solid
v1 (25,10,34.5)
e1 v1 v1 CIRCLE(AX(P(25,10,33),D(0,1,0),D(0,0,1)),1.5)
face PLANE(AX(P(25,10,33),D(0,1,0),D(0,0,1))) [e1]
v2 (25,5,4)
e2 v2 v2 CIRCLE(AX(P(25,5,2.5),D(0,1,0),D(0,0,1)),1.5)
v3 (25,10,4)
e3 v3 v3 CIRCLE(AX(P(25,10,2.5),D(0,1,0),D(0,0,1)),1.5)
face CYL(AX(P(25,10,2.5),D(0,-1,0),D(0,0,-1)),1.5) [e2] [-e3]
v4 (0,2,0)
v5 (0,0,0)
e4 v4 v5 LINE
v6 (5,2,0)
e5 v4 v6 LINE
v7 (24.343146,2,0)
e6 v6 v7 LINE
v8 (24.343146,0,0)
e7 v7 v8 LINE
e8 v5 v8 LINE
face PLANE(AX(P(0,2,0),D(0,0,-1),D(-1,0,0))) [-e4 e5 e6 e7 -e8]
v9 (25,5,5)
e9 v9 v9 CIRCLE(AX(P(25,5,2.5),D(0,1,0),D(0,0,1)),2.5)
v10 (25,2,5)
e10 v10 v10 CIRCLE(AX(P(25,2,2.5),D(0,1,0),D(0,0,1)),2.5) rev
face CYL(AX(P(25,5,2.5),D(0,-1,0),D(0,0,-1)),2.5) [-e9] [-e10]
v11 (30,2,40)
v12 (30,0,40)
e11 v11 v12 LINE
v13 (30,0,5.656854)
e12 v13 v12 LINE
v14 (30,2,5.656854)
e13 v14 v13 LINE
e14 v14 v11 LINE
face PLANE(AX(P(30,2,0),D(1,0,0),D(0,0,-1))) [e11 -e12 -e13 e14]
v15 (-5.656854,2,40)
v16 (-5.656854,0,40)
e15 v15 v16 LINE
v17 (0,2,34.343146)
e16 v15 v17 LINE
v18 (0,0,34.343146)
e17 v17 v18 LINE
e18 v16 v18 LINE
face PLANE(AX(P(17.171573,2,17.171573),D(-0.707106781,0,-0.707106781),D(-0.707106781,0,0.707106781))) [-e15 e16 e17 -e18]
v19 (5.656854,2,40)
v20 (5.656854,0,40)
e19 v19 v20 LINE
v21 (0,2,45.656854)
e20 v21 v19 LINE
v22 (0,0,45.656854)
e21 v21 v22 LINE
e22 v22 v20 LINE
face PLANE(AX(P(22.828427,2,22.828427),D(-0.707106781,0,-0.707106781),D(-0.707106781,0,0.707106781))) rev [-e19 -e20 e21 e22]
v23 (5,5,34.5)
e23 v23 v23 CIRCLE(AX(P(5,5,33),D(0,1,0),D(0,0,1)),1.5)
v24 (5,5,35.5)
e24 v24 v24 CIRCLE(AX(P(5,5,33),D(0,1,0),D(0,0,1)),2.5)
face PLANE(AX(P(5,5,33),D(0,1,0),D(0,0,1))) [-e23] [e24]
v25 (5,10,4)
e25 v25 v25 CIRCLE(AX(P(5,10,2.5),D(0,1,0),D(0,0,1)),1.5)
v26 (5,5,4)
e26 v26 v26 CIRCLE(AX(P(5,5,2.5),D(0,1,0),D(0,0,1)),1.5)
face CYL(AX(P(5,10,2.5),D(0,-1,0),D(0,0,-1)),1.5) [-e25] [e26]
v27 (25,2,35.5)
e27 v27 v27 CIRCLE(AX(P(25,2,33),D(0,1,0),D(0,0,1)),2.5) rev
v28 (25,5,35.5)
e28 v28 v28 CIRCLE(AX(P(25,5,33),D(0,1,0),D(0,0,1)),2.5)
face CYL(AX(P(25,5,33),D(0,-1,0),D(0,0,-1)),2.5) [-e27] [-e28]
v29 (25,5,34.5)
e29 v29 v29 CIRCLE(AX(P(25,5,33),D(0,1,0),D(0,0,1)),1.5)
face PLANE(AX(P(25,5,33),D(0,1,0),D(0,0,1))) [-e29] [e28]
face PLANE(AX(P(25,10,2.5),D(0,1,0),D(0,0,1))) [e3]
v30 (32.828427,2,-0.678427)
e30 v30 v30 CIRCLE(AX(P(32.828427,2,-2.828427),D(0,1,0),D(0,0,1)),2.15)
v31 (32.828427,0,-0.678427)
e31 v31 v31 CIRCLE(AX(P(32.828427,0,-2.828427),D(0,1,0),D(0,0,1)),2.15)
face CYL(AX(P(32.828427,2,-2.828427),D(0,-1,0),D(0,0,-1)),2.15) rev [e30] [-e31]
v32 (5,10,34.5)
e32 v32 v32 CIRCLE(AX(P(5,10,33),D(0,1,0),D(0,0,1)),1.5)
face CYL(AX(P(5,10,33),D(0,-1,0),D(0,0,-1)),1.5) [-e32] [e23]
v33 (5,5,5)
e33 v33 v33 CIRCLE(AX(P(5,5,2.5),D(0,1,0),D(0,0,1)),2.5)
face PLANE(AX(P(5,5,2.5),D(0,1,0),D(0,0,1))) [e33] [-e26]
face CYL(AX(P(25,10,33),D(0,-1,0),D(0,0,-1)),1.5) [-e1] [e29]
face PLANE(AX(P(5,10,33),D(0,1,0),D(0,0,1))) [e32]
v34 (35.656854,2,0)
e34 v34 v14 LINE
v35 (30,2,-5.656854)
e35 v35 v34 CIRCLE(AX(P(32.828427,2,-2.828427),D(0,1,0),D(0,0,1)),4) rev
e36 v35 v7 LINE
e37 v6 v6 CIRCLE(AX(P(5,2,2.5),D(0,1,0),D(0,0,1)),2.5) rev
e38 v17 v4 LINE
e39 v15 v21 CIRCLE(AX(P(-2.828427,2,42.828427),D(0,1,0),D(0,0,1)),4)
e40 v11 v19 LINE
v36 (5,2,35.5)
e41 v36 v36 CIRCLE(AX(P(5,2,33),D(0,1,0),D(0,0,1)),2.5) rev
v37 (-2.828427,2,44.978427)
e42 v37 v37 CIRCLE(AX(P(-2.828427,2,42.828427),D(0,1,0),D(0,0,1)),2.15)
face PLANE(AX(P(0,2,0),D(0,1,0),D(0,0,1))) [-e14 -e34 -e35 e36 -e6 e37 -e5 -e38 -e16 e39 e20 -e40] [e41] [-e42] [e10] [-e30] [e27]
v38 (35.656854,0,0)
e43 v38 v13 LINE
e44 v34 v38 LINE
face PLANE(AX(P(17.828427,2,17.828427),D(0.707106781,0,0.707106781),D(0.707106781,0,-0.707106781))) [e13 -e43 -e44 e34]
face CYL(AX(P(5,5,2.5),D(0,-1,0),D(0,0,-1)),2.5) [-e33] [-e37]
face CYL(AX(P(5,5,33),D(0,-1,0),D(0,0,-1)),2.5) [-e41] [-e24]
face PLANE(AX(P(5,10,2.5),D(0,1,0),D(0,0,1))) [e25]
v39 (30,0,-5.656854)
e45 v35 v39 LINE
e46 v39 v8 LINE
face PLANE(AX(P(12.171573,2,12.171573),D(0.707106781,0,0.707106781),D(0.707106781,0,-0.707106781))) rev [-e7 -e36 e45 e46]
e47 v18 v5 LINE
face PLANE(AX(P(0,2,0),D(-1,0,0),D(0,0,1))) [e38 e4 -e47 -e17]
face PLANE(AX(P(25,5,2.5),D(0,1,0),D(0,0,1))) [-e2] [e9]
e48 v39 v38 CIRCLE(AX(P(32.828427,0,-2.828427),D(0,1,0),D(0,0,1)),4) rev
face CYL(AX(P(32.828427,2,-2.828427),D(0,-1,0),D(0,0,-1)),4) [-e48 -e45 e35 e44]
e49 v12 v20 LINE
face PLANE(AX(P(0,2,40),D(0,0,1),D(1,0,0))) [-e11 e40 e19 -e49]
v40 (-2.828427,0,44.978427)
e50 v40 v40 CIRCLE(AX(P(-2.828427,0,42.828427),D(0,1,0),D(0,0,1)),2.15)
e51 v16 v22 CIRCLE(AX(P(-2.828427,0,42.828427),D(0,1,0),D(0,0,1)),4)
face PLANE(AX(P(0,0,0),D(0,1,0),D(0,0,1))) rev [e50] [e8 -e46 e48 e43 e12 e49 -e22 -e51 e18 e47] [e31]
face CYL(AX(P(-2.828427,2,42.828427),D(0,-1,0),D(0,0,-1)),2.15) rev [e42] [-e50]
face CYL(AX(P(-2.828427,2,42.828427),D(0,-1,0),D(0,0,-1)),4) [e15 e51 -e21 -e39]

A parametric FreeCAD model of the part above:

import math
import FreeCAD as App
import Part
import Sketcher
from FreeCAD import Vector

doc = App.newDocument("Part")
body = doc.addObject("PartDesign::Body", "Body")

sketch1 = body.newObject("Sketcher::SketchObject", "Sketch")
sketch1.AttachmentSupport = (doc.getObject("XZ_Plane"), [""])
sketch1.MapMode = "FlatFace"
sketch1.addGeometry([
    Part.LineSegment(Vector(24.343146, 0, 0), Vector(0, 0, 0)),
    Part.LineSegment(Vector(0, 0, 0), Vector(0, 34.343146, 0)),
    Part.LineSegment(Vector(0, 34.343146, 0), Vector(-5.656854, 40, 0)),
    Part.ArcOfCircle(Part.Circle(Vector(-2.828427, 42.828427, 0), Vector(0, 0, 1), 4), math.radians(45), math.radians(225)),
    Part.LineSegment(Vector(0, 45.656854, 0), Vector(5.656854, 40, 0)),
    Part.LineSegment(Vector(5.656854, 40, 0), Vector(30, 40, 0)),
    Part.LineSegment(Vector(30, 40, 0), Vector(30, 5.656854, 0)),
    Part.LineSegment(Vector(30, 5.656854, 0), Vector(35.656854, 0, 0)),
    Part.ArcOfCircle(Part.Circle(Vector(32.828427, -2.828427, 0), Vector(0, 0, 1), 4), math.radians(-135), math.radians(45)),
    Part.LineSegment(Vector(30, -5.656854, 0), Vector(24.343146, 0, 0)),
    Part.Circle(Vector(-2.828427, 42.828427, 0), Vector(0, 0, 1), 2.15),
    Part.Circle(Vector(32.828427, -2.828427, 0), Vector(0, 0, 1), 2.15),
], False)
sketch1.addConstraint([
    Sketcher.Constraint("Coincident", 0, 2, 1, 1),
    Sketcher.Constraint("Coincident", 1, 2, 2, 1),
    Sketcher.Constraint("Tangent", 2, 2, 3, 2),
    Sketcher.Constraint("Tangent", 3, 1, 4, 1),
    Sketcher.Constraint("Coincident", 4, 2, 5, 1),
    Sketcher.Constraint("Coincident", 5, 2, 6, 1),
    Sketcher.Constraint("Coincident", 6, 2, 7, 1),
    Sketcher.Constraint("Tangent", 7, 2, 8, 2),
    Sketcher.Constraint("Tangent", 8, 1, 9, 1),
    Sketcher.Constraint("Coincident", 9, 2, 0, 1),
    Sketcher.Constraint("Horizontal", 0),
    Sketcher.Constraint("Vertical", 1),
    Sketcher.Constraint("Horizontal", 5),
    Sketcher.Constraint("Vertical", 6),
    Sketcher.Constraint("Coincident", 0, 2, -1, 1),
    Sketcher.Constraint("Coincident", 10, 3, 3, 3),
    Sketcher.Constraint("Coincident", 11, 3, 8, 3),
    Sketcher.Constraint("Equal", 3, 8),
    Sketcher.Constraint("Equal", 10, 11),
    Sketcher.Constraint("Symmetric", 2, 2, 4, 2, -2),
    Sketcher.Constraint("Symmetric", 6, 2, 8, 1, -1),
    Sketcher.Constraint("PointOnObject", 3, 1, -2),
    Sketcher.Constraint("PointOnObject", 7, 2, -1),
    Sketcher.Constraint("Parallel", 2, 4),
    Sketcher.Constraint("Parallel", 4, 7),
    Sketcher.Constraint("Radius", 3, 4.0),
    Sketcher.Constraint("Diameter", 10, 4.3),
    Sketcher.Constraint("DistanceY", -1, 1, 2, 2, 40.0),
    Sketcher.Constraint("DistanceX", -1, 1, 5, 2, 30.0),
])
pad1 = body.newObject("PartDesign::Pad", "Pad")
pad1.Profile = sketch1
pad1.Length = 2
pad1.Reversed = True

sketch2 = body.newObject("Sketcher::SketchObject", "Sketch001")
sketch2.AttachmentSupport = (doc.getObject("XZ_Plane"), [""])
sketch2.MapMode = "FlatFace"
sketch2.addGeometry([
    Part.Circle(Vector(25, 2.5, 0), Vector(0, 0, 1), 1.5),
    Part.Circle(Vector(25, 33, 0), Vector(0, 0, 1), 1.5),
    Part.Circle(Vector(5, 33, 0), Vector(0, 0, 1), 1.5),
    Part.Circle(Vector(5, 2.5, 0), Vector(0, 0, 1), 1.5),
], False)
sketch2.addConstraint([
    Sketcher.Constraint("Equal", 0, 1),
    Sketcher.Constraint("Equal", 1, 2),
    Sketcher.Constraint("Equal", 2, 3),
    Sketcher.Constraint("Horizontal", 1, 3, 2, 3),
    Sketcher.Constraint("Horizontal", 0, 3, 3, 3),
    Sketcher.Constraint("Vertical", 0, 3, 1, 3),
    Sketcher.Constraint("Vertical", 2, 3, 3, 3),
    Sketcher.Constraint("Diameter", 0, 3.0),
    Sketcher.Constraint("DistanceX", -1, 1, 0, 3, 25.0),
    Sketcher.Constraint("DistanceY", -1, 1, 1, 3, 33.0),
    Sketcher.Constraint("DistanceX", -1, 1, 2, 3, 5.0),
    Sketcher.Constraint("DistanceY", -1, 1, 0, 3, 2.5),
])
pad2 = body.newObject("PartDesign::Pad", "Pad001")
pad2.Profile = sketch2
pad2.Length = 10
pad2.Reversed = True

sketch3 = body.newObject("Sketcher::SketchObject", "Sketch002")
sketch3.AttachmentSupport = (doc.getObject("XZ_Plane"), [""])
sketch3.MapMode = "FlatFace"
sketch3.addGeometry([
    Part.Circle(Vector(5, 2.5, 0), Vector(0, 0, 1), 2.5),
    Part.Circle(Vector(25, 2.5, 0), Vector(0, 0, 1), 2.5),
    Part.Circle(Vector(25, 33, 0), Vector(0, 0, 1), 2.5),
    Part.Circle(Vector(5, 33, 0), Vector(0, 0, 1), 2.5),
], False)
sketch3.addConstraint([
    Sketcher.Constraint("Equal", 0, 1),
    Sketcher.Constraint("Equal", 1, 2),
    Sketcher.Constraint("Equal", 2, 3),
    Sketcher.Constraint("Horizontal", 0, 3, 1, 3),
    Sketcher.Constraint("Horizontal", 2, 3, 3, 3),
    Sketcher.Constraint("Vertical", 1, 3, 2, 3),
    Sketcher.Constraint("Vertical", 0, 3, 3, 3),
    Sketcher.Constraint("Diameter", 0, 5.0),
    Sketcher.Constraint("DistanceX", -1, 1, 0, 3, 5.0),
    Sketcher.Constraint("DistanceX", -1, 1, 1, 3, 25.0),
    Sketcher.Constraint("DistanceY", -1, 1, 2, 3, 33.0),
    Sketcher.Constraint("DistanceY", -1, 1, 0, 3, 2.5),
])
pad3 = body.newObject("PartDesign::Pad", "Pad002")
pad3.Profile = sketch3
pad3.Length = 5
pad3.Reversed = True

doc.recompute()
